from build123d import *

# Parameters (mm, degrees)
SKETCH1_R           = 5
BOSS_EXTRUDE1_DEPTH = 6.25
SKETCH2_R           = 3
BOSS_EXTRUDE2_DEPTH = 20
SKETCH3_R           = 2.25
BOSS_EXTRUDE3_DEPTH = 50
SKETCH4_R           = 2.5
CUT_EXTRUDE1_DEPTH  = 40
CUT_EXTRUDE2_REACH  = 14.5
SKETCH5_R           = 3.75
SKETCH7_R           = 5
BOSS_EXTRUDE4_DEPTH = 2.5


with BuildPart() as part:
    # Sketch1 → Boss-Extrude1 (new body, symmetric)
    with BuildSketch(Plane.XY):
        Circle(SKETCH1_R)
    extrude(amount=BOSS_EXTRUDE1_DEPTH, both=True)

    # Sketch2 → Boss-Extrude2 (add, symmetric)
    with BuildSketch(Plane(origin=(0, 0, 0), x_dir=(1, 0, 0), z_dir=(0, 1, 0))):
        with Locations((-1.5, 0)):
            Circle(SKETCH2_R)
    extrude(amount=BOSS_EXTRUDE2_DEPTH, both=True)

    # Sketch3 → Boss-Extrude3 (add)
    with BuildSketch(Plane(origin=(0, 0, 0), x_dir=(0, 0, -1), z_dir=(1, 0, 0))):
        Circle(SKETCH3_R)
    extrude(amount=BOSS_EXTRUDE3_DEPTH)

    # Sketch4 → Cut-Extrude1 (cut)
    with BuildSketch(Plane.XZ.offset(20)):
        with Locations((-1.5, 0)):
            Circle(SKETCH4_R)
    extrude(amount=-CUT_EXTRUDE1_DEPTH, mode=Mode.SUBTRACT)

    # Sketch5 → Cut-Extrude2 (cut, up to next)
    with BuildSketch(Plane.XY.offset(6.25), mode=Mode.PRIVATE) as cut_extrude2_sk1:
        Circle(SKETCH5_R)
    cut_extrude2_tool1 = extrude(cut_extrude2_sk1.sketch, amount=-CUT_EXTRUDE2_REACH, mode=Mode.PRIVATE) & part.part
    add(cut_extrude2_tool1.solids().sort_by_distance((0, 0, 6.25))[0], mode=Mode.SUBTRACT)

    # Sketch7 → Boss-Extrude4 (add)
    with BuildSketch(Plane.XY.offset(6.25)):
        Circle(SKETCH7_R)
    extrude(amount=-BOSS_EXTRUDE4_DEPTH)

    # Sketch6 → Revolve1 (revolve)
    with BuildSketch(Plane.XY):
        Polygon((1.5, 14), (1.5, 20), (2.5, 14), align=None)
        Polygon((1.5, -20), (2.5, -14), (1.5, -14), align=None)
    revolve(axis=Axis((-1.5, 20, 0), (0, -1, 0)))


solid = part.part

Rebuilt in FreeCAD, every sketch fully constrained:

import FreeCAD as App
import Part
import Sketcher

V = App.Vector

doc = App.newDocument("Part")
params = doc.addObject("Spreadsheet::Sheet", "Params")
for row, (alias, value) in enumerate([
    ("sketch1_diameter", "10 mm"),
    ("pad1_length", "12.5 mm"),
    ("sketch2_diameter", "6 mm"),
    ("pad2_length", "40 mm"),
    ("sketch3_diameter", "4.5 mm"),
    ("pad3_length", "50 mm"),
    ("sketch4_diameter", "5 mm"),
    ("pocket1_length", "40 mm"),
    ("sketch5_diameter", "7.5 mm"),
    ("pocket2_length", "12.5 mm"),
    ("sketch6_diameter", "10 mm"),
    ("pad4_length", "2.5 mm"),
    ("sketch7_width", "1 mm"),
    ("sketch7_height", "6 mm"),
    ("sketch7_height2", "40 mm"),
    ("revolution_angle", "360 deg"),
], start=1):
    params.set(f"A{row}", alias)
    params.set(f"B{row}", "=" + value)
    params.setAlias(f"B{row}", alias)

body = doc.addObject("PartDesign::Body", "Body")

# Sketch on XY plane
sketch1 = body.newObject("Sketcher::SketchObject", "Sketch")
sketch1.AttachmentSupport = (doc.getObject("XY_Plane"), [""])
sketch1.MapMode = "FlatFace"
sketch1.addGeometry(Part.Circle(V(0, 0, 0), V(0, 0, 1), 5), False)
sketch1.addConstraint([
    Sketcher.Constraint("Coincident", 0, 3, -1, 1),
    Sketcher.Constraint("Diameter", 0, 10.0),
])
sketch1.setExpression("Constraints[1]", "Params.sketch1_diameter")
pad1 = body.newObject("PartDesign::Pad", "Pad")
pad1.Profile = sketch1
pad1.setExpression("Length", "Params.pad1_length")
pad1.Midplane = True

# Sketch on XZ plane
sketch2 = body.newObject("Sketcher::SketchObject", "Sketch001")
sketch2.AttachmentSupport = (doc.getObject("XZ_Plane"), [""])
sketch2.MapMode = "FlatFace"
sketch2.addGeometry(Part.Circle(V(-1.5, 0, 0), V(0, 0, 1), 3), False)
sketch2.addConstraint([
    Sketcher.Constraint("PointOnObject", 0, 3, -1),
    Sketcher.Constraint("Diameter", 0, 6.0),
    Sketcher.Constraint("DistanceX", 0, 3, -1, 1, 1.5),
])
sketch2.setExpression("Constraints[1]", "Params.sketch2_diameter")
pad2 = body.newObject("PartDesign::Pad", "Pad001")
pad2.Profile = sketch2
pad2.setExpression("Length", "Params.pad2_length")
pad2.Midplane = True

# Sketch on YZ plane
sketch3 = body.newObject("Sketcher::SketchObject", "Sketch002")
sketch3.AttachmentSupport = (doc.getObject("YZ_Plane"), [""])
sketch3.MapMode = "FlatFace"
sketch3.addGeometry(Part.Circle(V(0, 0, 0), V(0, 0, 1), 2.2), False)
sketch3.addConstraint([
    Sketcher.Constraint("Coincident", 0, 3, -1, 1),
    Sketcher.Constraint("Diameter", 0, 4.5),
])
sketch3.setExpression("Constraints[1]", "Params.sketch3_diameter")
pad3 = body.newObject("PartDesign::Pad", "Pad002")
pad3.Profile = sketch3
pad3.setExpression("Length", "Params.pad3_length")

# Sketch on XZ plane
sketch4 = body.newObject("Sketcher::SketchObject", "Sketch003")
sketch4.AttachmentSupport = (doc.getObject("XZ_Plane"), [""])
sketch4.MapMode = "FlatFace"
sketch4.AttachmentOffset = App.Placement(V(0, 0, 20), App.Rotation())
sketch4.addGeometry(Part.Circle(V(-1.5, 0, 0), V(0, 0, 1), 2.5), False)
sketch4.addConstraint([
    Sketcher.Constraint("PointOnObject", 0, 3, -1),
    Sketcher.Constraint("Diameter", 0, 5.0),
    Sketcher.Constraint("DistanceX", 0, 3, -1, 1, 1.5),
])
sketch4.setExpression("Constraints[1]", "Params.sketch4_diameter")
pocket1 = body.newObject("PartDesign::Pocket", "Pocket")
pocket1.Profile = sketch4
pocket1.setExpression("Length", "Params.pocket1_length")

# Sketch on XY plane
sketch5 = body.newObject("Sketcher::SketchObject", "Sketch004")
sketch5.AttachmentSupport = (doc.getObject("XY_Plane"), [""])
sketch5.MapMode = "FlatFace"
sketch5.AttachmentOffset = App.Placement(V(0, 0, 6.25), App.Rotation())
sketch5.addGeometry(Part.Circle(V(0, 0, 0), V(0, 0, 1), 3.8), False)
sketch5.addConstraint([
    Sketcher.Constraint("Coincident", 0, 3, -1, 1),
    Sketcher.Constraint("Diameter", 0, 7.5),
])
sketch5.setExpression("Constraints[1]", "Params.sketch5_diameter")
pocket2 = body.newObject("PartDesign::Pocket", "Pocket001")
pocket2.Profile = sketch5
pocket2.setExpression("Length", "Params.pocket2_length")

# Sketch on XY plane
sketch6 = body.newObject("Sketcher::SketchObject", "Sketch005")
sketch6.AttachmentSupport = (doc.getObject("XY_Plane"), [""])
sketch6.MapMode = "FlatFace"
sketch6.AttachmentOffset = App.Placement(V(0, 0, 6.25), App.Rotation())
sketch6.addGeometry(Part.Circle(V(0, 0, 0), V(0, 0, 1), 5), False)
sketch6.addConstraint([
    Sketcher.Constraint("Coincident", 0, 3, -1, 1),
    Sketcher.Constraint("Diameter", 0, 10.0),
])
sketch6.setExpression("Constraints[1]", "Params.sketch6_diameter")
pad4 = body.newObject("PartDesign::Pad", "Pad003")
pad4.Profile = sketch6
pad4.setExpression("Length", "Params.pad4_length")
pad4.Reversed = True

# Sketch on XY plane
sketch7 = body.newObject("Sketcher::SketchObject", "Sketch006")
sketch7.AttachmentSupport = (doc.getObject("XY_Plane"), [""])
sketch7.MapMode = "FlatFace"
sketch7.addGeometry([
    Part.LineSegment(V(1.5, 20, 0), V(1.5, 14, 0)),  # 0
    Part.LineSegment(V(1.5, 14, 0), V(2.5, 14, 0)),  # 1
    Part.LineSegment(V(2.5, 14, 0), V(1.5, 20, 0)),  # 2
    Part.LineSegment(V(1.5, -20, 0), V(2.5, -14, 0)),  # 3
    Part.LineSegment(V(2.5, -14, 0), V(1.5, -14, 0)),  # 4
    Part.LineSegment(V(1.5, -14, 0), V(1.5, -20, 0)),  # 5
], False)
sketch7.addGeometry(Part.LineSegment(V(-1.5, 20, 0), V(-1.5, -20, 0)), True)  # axis
sketch7.addConstraint([
    Sketcher.Constraint("Coincident", 0, 2, 1, 1),
    Sketcher.Constraint("Coincident", 1, 2, 2, 1),
    Sketcher.Constraint("Coincident", 2, 2, 0, 1),
    Sketcher.Constraint("Coincident", 3, 2, 4, 1),
    Sketcher.Constraint("Coincident", 4, 2, 5, 1),
    Sketcher.Constraint("Coincident", 5, 2, 3, 1),
    Sketcher.Constraint("Vertical", 0),
    Sketcher.Constraint("Horizontal", 1),
    Sketcher.Constraint("Horizontal", 4),
    Sketcher.Constraint("Vertical", 5),
    Sketcher.Constraint("Vertical", 6),
    Sketcher.Constraint("Symmetric", 5, 2, 6, 1, -1, 1),
    Sketcher.Constraint("Symmetric", 2, 2, 6, 2, -1, 1),
    Sketcher.Constraint("Symmetric", 1, 2, 3, 2, -1),
    Sketcher.Constraint("Horizontal", 2, 2, 6, 1),
    Sketcher.Constraint("DistanceX", 1, 1, 1, 2, 1.0),
    Sketcher.Constraint("DistanceY", 0, 2, 0, 1, 6.0),
    Sketcher.Constraint("DistanceY", 6, 2, 6, 1, 40.0),
    Sketcher.Constraint("DistanceX", 6, 1, 2, 2, 3.0),
])
sketch7.setExpression("Constraints[15]", "Params.sketch7_width")
sketch7.setExpression("Constraints[16]", "Params.sketch7_height")
sketch7.setExpression("Constraints[17]", "Params.sketch7_height2")
revolution = body.newObject("PartDesign::Revolution", "Revolution")
revolution.Profile = sketch7
revolution.ReferenceAxis = (sketch7, ["Axis0"])
revolution.setExpression("Angle", "Params.revolution_angle")

doc.recompute()
